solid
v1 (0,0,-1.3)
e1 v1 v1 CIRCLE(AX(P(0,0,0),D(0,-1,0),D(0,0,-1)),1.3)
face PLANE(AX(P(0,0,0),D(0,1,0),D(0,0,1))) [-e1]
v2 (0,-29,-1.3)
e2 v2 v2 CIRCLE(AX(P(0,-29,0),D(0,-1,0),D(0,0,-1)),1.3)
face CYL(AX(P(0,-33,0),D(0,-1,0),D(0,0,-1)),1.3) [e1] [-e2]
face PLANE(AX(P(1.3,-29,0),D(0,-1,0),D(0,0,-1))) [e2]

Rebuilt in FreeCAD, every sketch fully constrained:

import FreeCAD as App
import Part
import Sketcher
from FreeCAD import Vector
Q = App.Units.Quantity


def add_polygon(sketch, points):
    """Adds a closed chain of lines whose ends are joined by coincident constraints."""
    first, n = sketch.GeometryCount, len(points)
    for a, b in zip(points, points[1:] + points[:1]):
        sketch.addGeometry(Part.LineSegment(App.Vector(*a, 0), App.Vector(*b, 0)), False)
    for i in range(n):
        sketch.addConstraint(Sketcher.Constraint("Coincident", first + i, 2, first + (i + 1) % n, 1))

doc = App.newDocument("Part")
params = doc.addObject("Spreadsheet::Sheet", "Params")
for row, (alias, value) in enumerate([
    ("sketch1_height", "29 mm"),
    ("sketch1_width", "1.3 mm"),
    ("revolution_angle", "360 deg"),
], start=1):
    params.set(f"A{row}", alias)
    params.set(f"B{row}", "=" + value)
    params.setAlias(f"B{row}", alias)

body = doc.addObject("PartDesign::Body", "Body")

sketch1 = body.newObject("Sketcher::SketchObject", "Sketch")
sketch1.AttachmentSupport = (doc.getObject("XY_Plane"), [""])
sketch1.MapMode = "FlatFace"
add_polygon(sketch1, [(0, 0), (0, -29), (1.3, -29), (1.3, 0)])
sketch1.addConstraint(Sketcher.Constraint("Vertical", 0))
sketch1.addConstraint(Sketcher.Constraint("Horizontal", 1))
sketch1.addConstraint(Sketcher.Constraint("Vertical", 2))
sketch1.addConstraint(Sketcher.Constraint("Horizontal", 3))
sketch1.addConstraint(Sketcher.Constraint("Coincident", 3, 2, -1, 1))
sketch1.addConstraint(Sketcher.Constraint("DistanceY", 0, 2, 0, 1, Q("29 mm")))
sketch1.addConstraint(Sketcher.Constraint("DistanceX", 1, 1, 1, 2, Q("1.3 mm")))
sketch1.setExpression("Constraints[9]", "Params.sketch1_height")
sketch1.setExpression("Constraints[10]", "Params.sketch1_width")
revolution = body.newObject("PartDesign::Revolution", "Revolution")
revolution.Profile = sketch1
revolution.ReferenceAxis = (sketch1, ["V_Axis"])
revolution.setExpression("Angle", "Params.revolution_angle")

doc.recompute()
